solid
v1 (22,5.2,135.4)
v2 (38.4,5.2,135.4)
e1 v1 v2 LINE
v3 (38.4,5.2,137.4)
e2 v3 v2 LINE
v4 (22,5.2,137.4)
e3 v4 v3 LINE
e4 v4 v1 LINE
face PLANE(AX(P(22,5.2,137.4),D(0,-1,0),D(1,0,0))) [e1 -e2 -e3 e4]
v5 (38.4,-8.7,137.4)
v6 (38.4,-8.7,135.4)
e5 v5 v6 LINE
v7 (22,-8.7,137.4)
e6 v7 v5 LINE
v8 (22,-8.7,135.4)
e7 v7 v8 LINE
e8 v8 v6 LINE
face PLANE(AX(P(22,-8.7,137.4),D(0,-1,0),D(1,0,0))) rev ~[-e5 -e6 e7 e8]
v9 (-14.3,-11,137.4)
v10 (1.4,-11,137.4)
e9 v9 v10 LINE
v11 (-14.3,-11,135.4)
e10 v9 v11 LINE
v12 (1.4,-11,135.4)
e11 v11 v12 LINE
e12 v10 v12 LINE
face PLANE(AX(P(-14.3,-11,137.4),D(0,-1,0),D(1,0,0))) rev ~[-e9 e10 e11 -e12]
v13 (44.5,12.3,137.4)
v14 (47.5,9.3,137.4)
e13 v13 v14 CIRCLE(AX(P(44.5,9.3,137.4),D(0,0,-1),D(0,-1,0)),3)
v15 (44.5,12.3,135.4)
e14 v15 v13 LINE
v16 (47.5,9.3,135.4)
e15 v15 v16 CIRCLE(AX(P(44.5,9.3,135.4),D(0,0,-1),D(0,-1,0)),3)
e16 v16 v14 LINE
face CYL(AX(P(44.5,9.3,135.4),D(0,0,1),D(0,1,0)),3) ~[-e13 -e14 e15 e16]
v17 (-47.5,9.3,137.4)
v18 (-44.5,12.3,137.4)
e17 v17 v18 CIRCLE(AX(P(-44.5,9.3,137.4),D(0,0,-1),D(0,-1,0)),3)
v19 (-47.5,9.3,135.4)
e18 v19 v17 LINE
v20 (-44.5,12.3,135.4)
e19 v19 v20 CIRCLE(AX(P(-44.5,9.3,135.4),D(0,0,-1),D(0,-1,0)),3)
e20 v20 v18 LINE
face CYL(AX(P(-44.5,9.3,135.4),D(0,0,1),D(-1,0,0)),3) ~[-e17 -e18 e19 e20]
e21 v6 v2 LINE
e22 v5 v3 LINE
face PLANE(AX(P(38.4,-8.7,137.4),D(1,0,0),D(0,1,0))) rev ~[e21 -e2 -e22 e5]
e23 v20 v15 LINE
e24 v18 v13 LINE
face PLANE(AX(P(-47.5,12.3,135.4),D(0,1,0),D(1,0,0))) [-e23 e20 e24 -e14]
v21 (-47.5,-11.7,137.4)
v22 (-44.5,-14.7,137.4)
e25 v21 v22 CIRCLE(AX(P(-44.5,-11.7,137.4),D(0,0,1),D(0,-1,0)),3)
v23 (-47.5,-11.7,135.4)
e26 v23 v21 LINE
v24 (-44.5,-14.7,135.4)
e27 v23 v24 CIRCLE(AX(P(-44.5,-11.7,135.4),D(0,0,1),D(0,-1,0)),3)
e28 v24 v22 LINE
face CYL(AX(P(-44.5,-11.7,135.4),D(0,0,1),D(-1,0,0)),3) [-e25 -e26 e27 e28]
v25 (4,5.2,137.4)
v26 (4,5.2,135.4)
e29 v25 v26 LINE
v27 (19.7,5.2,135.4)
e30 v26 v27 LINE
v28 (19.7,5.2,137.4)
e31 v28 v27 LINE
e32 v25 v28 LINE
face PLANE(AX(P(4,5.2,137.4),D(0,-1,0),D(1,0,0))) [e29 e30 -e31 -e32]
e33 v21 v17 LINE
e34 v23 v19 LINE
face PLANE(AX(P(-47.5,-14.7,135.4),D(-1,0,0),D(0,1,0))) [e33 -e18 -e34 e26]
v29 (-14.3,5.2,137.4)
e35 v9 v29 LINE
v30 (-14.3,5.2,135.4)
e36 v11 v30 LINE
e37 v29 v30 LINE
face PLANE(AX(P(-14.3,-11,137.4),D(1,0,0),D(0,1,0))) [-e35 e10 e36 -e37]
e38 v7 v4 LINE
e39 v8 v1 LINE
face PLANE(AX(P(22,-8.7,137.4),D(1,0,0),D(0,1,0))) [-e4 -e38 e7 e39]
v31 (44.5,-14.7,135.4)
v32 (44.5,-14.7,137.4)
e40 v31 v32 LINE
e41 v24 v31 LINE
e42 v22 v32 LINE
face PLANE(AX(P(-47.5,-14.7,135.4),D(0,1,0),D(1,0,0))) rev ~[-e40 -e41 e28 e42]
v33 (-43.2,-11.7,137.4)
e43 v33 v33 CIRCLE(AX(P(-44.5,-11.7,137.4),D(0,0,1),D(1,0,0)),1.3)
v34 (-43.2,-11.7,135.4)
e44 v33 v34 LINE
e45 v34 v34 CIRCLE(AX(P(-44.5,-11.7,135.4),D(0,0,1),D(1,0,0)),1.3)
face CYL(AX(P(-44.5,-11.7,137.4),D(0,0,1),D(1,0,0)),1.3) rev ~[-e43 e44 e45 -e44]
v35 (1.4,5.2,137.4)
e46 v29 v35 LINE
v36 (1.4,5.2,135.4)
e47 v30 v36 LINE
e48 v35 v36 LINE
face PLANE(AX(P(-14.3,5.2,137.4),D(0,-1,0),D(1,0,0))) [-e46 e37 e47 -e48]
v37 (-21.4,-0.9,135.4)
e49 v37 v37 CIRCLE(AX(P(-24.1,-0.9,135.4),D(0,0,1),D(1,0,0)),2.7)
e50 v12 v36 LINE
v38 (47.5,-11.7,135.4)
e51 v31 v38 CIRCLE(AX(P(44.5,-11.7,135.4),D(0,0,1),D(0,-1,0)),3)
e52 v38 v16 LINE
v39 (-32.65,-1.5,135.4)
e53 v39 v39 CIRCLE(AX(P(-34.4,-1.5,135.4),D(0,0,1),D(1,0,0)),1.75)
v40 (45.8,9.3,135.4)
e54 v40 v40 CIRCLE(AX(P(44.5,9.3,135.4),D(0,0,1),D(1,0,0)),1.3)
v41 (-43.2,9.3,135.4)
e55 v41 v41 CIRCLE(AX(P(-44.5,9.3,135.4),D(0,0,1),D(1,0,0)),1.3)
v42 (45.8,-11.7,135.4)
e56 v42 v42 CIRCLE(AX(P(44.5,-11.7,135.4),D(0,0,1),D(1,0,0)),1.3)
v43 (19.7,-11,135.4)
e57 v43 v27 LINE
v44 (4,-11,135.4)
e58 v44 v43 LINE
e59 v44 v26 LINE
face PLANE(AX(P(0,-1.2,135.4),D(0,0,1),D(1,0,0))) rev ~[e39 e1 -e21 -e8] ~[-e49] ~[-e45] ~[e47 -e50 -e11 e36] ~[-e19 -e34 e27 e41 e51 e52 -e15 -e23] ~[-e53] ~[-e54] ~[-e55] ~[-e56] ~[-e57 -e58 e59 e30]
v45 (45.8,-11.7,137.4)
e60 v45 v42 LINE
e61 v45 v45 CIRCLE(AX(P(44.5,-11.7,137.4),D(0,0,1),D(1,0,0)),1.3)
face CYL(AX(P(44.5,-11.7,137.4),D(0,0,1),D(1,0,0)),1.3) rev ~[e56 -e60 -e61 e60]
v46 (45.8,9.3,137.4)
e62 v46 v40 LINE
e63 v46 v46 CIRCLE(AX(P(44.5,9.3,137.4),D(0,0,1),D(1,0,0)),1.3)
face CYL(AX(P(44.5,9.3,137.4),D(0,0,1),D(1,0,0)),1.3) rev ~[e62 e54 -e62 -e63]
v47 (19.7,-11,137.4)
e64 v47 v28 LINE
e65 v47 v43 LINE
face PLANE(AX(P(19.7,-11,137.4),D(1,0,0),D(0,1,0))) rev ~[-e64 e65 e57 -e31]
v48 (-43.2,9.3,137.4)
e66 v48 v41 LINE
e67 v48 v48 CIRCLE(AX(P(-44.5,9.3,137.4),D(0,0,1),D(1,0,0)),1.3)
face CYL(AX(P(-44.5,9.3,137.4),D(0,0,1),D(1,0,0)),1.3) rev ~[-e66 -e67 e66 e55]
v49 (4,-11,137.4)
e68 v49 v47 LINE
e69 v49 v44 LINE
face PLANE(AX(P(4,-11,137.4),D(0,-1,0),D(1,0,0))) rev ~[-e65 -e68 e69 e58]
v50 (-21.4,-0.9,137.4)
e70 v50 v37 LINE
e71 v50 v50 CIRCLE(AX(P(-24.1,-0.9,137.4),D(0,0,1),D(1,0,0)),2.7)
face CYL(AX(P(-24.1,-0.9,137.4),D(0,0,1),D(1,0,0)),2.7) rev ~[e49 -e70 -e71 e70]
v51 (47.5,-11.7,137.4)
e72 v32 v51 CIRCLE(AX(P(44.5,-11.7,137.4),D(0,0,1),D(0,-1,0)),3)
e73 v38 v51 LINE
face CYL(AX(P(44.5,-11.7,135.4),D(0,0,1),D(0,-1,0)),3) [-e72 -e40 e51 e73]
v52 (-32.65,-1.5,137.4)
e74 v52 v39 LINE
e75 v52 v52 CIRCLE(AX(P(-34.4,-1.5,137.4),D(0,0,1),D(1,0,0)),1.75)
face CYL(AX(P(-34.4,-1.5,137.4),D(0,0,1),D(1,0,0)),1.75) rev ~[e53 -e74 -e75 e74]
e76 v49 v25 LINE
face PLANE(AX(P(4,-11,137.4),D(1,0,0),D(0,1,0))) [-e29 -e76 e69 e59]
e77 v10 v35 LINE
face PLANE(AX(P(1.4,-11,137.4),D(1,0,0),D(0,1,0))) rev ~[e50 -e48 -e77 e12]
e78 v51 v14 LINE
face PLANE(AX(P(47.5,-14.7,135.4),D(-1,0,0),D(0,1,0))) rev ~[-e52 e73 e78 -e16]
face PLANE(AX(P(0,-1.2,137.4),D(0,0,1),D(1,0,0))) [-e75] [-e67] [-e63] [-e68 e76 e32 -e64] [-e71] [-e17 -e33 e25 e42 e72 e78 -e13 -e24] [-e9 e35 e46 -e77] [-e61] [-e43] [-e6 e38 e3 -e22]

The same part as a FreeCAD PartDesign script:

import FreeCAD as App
import Part
import Sketcher


def edges_at(feature, points):
    """Names of the edges that pass closest to the given points."""
    edges = feature.Shape.Edges
    near = lambda p: min(range(len(edges)), key=lambda i: edges[i].distToShape(Part.Vertex(*p))[0])
    return sorted({f"Edge{near(p) + 1}" for p in points})


def add_polygon(sketch, points):
    """Adds a closed chain of lines whose ends are joined by coincident constraints."""
    first, n = sketch.GeometryCount, len(points)
    for a, b in zip(points, points[1:] + points[:1]):
        sketch.addGeometry(Part.LineSegment(App.Vector(*a, 0), App.Vector(*b, 0)), False)
    for i in range(n):
        sketch.addConstraint(Sketcher.Constraint("Coincident", first + i, 2, first + (i + 1) % n, 1))

doc = App.newDocument("Part")
body = doc.addObject("PartDesign::Body", "Body")

sketch1 = body.newObject("Sketcher::SketchObject", "Sketch")
sketch1.AttachmentSupport = (doc.getObject("XY_Plane"), [""])
sketch1.MapMode = "FlatFace"
add_polygon(sketch1, [(-48, 14), (-48, -14), (48, -14), (48, 14)])
sketch1.addConstraint([
    Sketcher.Constraint("Vertical", 0),
    Sketcher.Constraint("Horizontal", 1),
    Sketcher.Constraint("Vertical", 2),
    Sketcher.Constraint("Horizontal", 3),
    Sketcher.Constraint("Symmetric", 0, 2, 2, 2, -1, 1),
    Sketcher.Constraint("DistanceX", 1, 1, 1, 2, 95.0),
    Sketcher.Constraint("DistanceY", 0, 2, 0, 1, 27.0),
])
pad1 = body.newObject("PartDesign::Pad", "Pad")
pad1.Profile = sketch1
pad1.Length = 2

sketch2 = body.newObject("Sketcher::SketchObject", "Sketch001")
sketch2.AttachmentSupport = (doc.getObject("XY_Plane"), [""])
sketch2.MapMode = "FlatFace"
sketch2.AttachmentOffset = App.Placement(App.Vector(0, 0, 2), App.Rotation())
sketch2.addGeometry([
    Part.Circle(App.Vector(-44.5, 10.5, 0), App.Vector(0, 0, 1), 1.3),
    Part.Circle(App.Vector(44.5, 10.5, 0), App.Vector(0, 0, 1), 1.3),
    Part.Circle(App.Vector(44.5, -10.5, 0), App.Vector(0, 0, 1), 1.3),
    Part.Circle(App.Vector(-44.5, -10.5, 0), App.Vector(0, 0, 1), 1.3),
], False)
sketch2.addConstraint([
    Sketcher.Constraint("Equal", 0, 1),
    Sketcher.Constraint("Equal", 1, 2),
    Sketcher.Constraint("Equal", 2, 3),
    Sketcher.Constraint("Symmetric", 0, 3, 2, 3, -1, 1),
    Sketcher.Constraint("Symmetric", 1, 3, 3, 3, -1, 1),
    Sketcher.Constraint("Symmetric", 0, 3, 1, 3, -2),
    Sketcher.Constraint("Diameter", 0, 2.6),
    Sketcher.Constraint("DistanceX", 0, 3, 1, 3, 89.0),
    Sketcher.Constraint("DistanceY", 2, 3, 1, 3, 21.0),
])
pocket1 = body.newObject("PartDesign::Pocket", "Pocket")
pocket1.Profile = sketch2
pocket1.Length = 2
doc.recompute()

fillet = body.newObject("PartDesign::Fillet", "Fillet")
fillet.Base = (pocket1, edges_at(pocket1, [
    (-47.5, -13.5, 1),
    (47.5, -13.5, 1),
    (47.5, 13.5, 1),
    (-47.5, 13.5, 1),
]))
fillet.Radius = 3

sketch3 = body.newObject("Sketcher::SketchObject", "Sketch002")
sketch3.AttachmentSupport = (doc.getObject("XY_Plane"), [""])
sketch3.MapMode = "FlatFace"
sketch3.AttachmentOffset = App.Placement(App.Vector(0, 0, 2), App.Rotation())
sketch3.addGeometry([
    Part.Circle(App.Vector(-34.4, -0.3, 0), App.Vector(0, 0, 1), 1.8),
    Part.Circle(App.Vector(-24.1, 0.3, 0), App.Vector(0, 0, 1), 2.7),
], False)
sketch3.addConstraint([
    Sketcher.Constraint("Diameter", 0, 3.5),
    Sketcher.Constraint("Diameter", 1, 5.4),
    Sketcher.Constraint("DistanceX", 0, 3, -1, 1, 34.4),
    Sketcher.Constraint("DistanceY", 0, 3, -1, 1, 0.3),
    Sketcher.Constraint("DistanceX", 1, 3, -1, 1, 24.1),
    Sketcher.Constraint("DistanceY", -1, 1, 1, 3, 0.3),
])
pocket2 = body.newObject("PartDesign::Pocket", "Pocket001")
pocket2.Profile = sketch3
pocket2.Length = 2

sketch4 = body.newObject("Sketcher::SketchObject", "Sketch003")
sketch4.AttachmentSupport = (doc.getObject("XY_Plane"), [""])
sketch4.MapMode = "FlatFace"
sketch4.AttachmentOffset = App.Placement(App.Vector(0, 0, 2), App.Rotation())
add_polygon(sketch4, [(-14, 6), (-14, -10), (1, -10), (1, 6)])
add_polygon(sketch4, [(4, 6), (4, -10), (20, -10), (20, 6)])
add_polygon(sketch4, [(22, 6), (22, -8), (38, -8), (38, 6)])
sketch4.addConstraint([
    Sketcher.Constraint("Vertical", 0),
    Sketcher.Constraint("Horizontal", 1),
    Sketcher.Constraint("Vertical", 2),
    Sketcher.Constraint("Horizontal", 3),
    Sketcher.Constraint("Vertical", 4),
    Sketcher.Constraint("Horizontal", 5),
    Sketcher.Constraint("Vertical", 6),
    Sketcher.Constraint("Horizontal", 7),
    Sketcher.Constraint("Vertical", 8),
    Sketcher.Constraint("Horizontal", 9),
    Sketcher.Constraint("Vertical", 10),
    Sketcher.Constraint("Horizontal", 11),
    Sketcher.Constraint("Horizontal", 1, 2, 4, 2),
    Sketcher.Constraint("Horizontal", 3, 2, 6, 2),
    Sketcher.Constraint("Horizontal", 7, 2, 10, 2),
    Sketcher.Constraint("Equal", 3, 5),
    Sketcher.Constraint("DistanceX", 1, 1, 1, 2, 15.7),
    Sketcher.Constraint("DistanceX", 9, 1, 9, 2, 16.4),
    Sketcher.Constraint("DistanceY", 0, 2, 0, 1, 16.2),
    Sketcher.Constraint("DistanceY", 8, 2, 8, 1, 13.9),
    Sketcher.Constraint("DistanceX", -1, 1, 4, 2, 4.0),
    Sketcher.Constraint("DistanceX", -1, 1, 8, 2, 22.0),
    Sketcher.Constraint("DistanceX", 0, 2, 5, 2, 34.0),
    Sketcher.Constraint("DistanceY", 0, 2, -1, 1, 9.8),
])
pocket3 = body.newObject("PartDesign::Pocket", "Pocket002")
pocket3.Profile = sketch4
pocket3.Length = 2
body2 = doc.addObject("PartDesign::Body", "Body001")
doc.recompute()

body.Placement = App.Placement(App.Vector(0, -1.2, 135.4), App.Rotation(App.Vector(0, 0, 1), 0))
boolean = body2.newObject("PartDesign::Boolean", "Boolean")
boolean.Type = "Fuse"
boolean.addObjects([body])

doc.recompute()
